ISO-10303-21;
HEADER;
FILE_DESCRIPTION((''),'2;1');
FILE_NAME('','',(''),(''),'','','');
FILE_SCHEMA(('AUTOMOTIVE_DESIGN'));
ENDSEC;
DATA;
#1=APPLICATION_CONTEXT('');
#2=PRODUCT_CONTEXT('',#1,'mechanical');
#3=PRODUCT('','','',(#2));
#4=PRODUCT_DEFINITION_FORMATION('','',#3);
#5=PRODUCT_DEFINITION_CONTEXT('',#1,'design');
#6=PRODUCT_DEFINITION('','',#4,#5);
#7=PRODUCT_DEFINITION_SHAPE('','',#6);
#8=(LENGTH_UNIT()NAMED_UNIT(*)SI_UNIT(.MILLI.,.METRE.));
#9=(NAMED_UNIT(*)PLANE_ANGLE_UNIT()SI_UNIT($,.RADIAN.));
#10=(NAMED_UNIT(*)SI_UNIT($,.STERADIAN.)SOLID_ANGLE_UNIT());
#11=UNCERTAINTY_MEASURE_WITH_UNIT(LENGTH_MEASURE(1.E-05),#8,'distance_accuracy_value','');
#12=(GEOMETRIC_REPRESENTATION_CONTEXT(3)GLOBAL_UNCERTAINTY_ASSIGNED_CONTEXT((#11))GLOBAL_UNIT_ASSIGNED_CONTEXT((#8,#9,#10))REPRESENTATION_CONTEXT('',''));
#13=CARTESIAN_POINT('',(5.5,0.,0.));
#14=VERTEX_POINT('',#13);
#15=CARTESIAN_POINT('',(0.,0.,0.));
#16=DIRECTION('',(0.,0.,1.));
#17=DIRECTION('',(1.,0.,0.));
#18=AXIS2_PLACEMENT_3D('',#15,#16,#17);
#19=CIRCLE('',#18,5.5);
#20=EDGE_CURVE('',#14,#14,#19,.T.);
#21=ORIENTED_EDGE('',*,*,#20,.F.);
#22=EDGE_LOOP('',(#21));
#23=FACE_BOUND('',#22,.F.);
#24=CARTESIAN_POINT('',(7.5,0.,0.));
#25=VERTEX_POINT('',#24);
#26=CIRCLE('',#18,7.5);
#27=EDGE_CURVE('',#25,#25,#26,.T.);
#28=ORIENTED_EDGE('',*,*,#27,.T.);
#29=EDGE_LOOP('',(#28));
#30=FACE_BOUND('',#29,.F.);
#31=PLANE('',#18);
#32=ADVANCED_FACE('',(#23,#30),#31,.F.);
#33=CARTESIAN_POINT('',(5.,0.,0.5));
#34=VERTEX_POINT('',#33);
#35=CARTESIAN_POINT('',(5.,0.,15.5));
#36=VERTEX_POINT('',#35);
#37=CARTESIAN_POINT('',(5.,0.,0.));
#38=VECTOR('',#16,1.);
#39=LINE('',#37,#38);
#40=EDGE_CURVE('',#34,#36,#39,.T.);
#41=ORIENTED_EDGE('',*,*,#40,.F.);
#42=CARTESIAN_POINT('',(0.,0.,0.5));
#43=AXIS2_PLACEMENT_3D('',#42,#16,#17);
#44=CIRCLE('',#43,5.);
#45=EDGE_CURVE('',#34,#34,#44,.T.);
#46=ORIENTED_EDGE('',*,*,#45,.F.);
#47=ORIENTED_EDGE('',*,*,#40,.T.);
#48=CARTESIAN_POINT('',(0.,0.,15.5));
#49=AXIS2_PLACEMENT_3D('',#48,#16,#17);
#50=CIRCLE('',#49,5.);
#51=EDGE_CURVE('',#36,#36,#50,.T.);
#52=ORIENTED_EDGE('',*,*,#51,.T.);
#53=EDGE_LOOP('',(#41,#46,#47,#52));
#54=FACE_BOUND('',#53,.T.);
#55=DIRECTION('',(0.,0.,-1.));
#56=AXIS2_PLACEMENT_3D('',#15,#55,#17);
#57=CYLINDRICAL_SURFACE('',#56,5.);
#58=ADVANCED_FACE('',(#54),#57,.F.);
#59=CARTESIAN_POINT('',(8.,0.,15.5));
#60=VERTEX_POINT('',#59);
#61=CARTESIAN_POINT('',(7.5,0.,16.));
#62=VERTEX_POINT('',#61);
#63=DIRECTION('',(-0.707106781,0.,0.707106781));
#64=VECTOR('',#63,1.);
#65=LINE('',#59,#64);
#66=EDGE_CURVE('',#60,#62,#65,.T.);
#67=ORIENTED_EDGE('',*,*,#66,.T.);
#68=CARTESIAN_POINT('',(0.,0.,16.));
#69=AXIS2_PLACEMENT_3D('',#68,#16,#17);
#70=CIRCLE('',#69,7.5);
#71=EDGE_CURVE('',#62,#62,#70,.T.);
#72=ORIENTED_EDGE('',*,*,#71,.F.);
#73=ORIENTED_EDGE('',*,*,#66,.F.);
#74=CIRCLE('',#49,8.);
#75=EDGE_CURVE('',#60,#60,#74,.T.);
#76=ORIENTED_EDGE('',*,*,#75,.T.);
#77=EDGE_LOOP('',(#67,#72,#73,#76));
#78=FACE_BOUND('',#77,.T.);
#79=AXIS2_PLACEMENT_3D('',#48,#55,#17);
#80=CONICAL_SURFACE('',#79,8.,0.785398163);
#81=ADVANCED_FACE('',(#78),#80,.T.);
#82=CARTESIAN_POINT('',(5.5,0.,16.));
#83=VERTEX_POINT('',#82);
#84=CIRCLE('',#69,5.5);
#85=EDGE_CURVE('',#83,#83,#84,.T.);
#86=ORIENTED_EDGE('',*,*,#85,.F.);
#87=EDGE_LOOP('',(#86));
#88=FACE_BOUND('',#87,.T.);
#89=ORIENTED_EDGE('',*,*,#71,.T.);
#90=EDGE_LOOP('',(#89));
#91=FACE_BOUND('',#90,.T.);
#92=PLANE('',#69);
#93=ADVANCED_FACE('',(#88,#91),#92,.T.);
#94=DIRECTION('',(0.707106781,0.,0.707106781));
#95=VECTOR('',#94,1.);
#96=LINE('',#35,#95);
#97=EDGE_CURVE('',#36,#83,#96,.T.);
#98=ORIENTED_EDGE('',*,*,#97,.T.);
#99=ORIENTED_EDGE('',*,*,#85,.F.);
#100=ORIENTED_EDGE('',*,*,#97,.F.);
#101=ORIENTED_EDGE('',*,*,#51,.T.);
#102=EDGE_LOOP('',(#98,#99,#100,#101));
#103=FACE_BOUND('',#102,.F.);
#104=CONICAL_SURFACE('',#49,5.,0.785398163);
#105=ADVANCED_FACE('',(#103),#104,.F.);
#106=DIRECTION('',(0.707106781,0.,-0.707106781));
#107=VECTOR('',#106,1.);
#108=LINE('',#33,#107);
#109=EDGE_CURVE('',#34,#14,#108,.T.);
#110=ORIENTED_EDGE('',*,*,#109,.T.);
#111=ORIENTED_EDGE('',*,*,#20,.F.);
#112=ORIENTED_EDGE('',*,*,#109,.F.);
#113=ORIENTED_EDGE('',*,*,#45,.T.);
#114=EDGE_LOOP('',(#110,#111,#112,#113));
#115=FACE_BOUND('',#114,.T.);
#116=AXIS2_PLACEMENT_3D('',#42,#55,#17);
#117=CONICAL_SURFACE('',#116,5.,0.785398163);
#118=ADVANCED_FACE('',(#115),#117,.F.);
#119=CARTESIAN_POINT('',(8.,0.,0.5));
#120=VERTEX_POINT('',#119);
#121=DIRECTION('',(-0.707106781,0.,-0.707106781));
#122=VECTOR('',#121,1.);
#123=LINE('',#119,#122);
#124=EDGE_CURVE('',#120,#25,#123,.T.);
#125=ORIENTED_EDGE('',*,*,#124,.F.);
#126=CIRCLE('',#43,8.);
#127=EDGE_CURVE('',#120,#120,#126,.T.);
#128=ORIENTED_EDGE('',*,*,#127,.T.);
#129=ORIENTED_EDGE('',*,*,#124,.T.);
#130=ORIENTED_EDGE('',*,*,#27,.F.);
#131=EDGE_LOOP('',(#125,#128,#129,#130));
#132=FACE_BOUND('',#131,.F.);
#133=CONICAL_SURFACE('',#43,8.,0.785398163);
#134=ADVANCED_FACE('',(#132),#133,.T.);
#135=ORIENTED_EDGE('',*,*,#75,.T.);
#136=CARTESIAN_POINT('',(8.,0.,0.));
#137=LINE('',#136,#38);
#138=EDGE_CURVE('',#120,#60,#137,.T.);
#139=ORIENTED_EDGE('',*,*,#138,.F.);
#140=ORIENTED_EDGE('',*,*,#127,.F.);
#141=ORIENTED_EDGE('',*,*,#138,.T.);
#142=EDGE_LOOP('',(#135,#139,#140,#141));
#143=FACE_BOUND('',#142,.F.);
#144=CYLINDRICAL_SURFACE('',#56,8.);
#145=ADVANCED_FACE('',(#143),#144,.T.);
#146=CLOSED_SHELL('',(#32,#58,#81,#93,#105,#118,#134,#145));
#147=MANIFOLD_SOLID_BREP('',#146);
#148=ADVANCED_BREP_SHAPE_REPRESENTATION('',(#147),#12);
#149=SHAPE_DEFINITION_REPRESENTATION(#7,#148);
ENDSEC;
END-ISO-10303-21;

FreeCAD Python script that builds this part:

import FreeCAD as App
import Part
import Sketcher
from FreeCAD import Vector


def edges_at(feature, points):
    """Names of the edges that pass closest to the given points."""
    edges = feature.Shape.Edges
    near = lambda p: min(range(len(edges)), key=lambda i: edges[i].distToShape(Part.Vertex(*p))[0])
    return sorted({f"Edge{near(p) + 1}" for p in points})

doc = App.newDocument("Part")
params = doc.addObject("Spreadsheet::Sheet", "Params")
for row, (alias, value) in enumerate([
    ("sketch1_diameter", "16 mm"),
    ("sketch1_diameter2", "10 mm"),
    ("pad1_length", "16 mm"),
    ("chamfer_size", "0.5 mm"),
], start=1):
    params.set(f"A{row}", alias)
    params.set(f"B{row}", "=" + value)
    params.setAlias(f"B{row}", alias)

body = doc.addObject("PartDesign::Body", "Body")

# Sketch on XY plane
sketch1 = body.newObject("Sketcher::SketchObject", "Sketch")
sketch1.AttachmentSupport = (doc.getObject("XY_Plane"), [""])
sketch1.MapMode = "FlatFace"
sketch1.addGeometry([
    Part.Circle(Vector(0, 0, 0), Vector(0, 0, 1), 8),
    Part.Circle(Vector(0, 0, 0), Vector(0, 0, 1), 5),
], False)
sketch1.addConstraint([
    Sketcher.Constraint("Coincident", 0, 3, -1, 1),
    Sketcher.Constraint("Coincident", 1, 3, -1, 1),
    Sketcher.Constraint("Diameter", 0, 16.0),
    Sketcher.Constraint("Diameter", 1, 10.0),
])
sketch1.setExpression("Constraints[2]", "Params.sketch1_diameter")
sketch1.setExpression("Constraints[3]", "Params.sketch1_diameter2")
pad1 = body.newObject("PartDesign::Pad", "Pad")
pad1.Profile = sketch1
pad1.setExpression("Length", "Params.pad1_length")
doc.recompute()

chamfer = body.newObject("PartDesign::Chamfer", "Chamfer")
chamfer.Base = (pad1, edges_at(pad1, [
    (-8, 0, 16),
    (-5, 0, 16),
    (-5, 0, 0),
    (-8, 0, 0),
]))
chamfer.setExpression("Size", "Params.chamfer_size")

doc.recompute()
